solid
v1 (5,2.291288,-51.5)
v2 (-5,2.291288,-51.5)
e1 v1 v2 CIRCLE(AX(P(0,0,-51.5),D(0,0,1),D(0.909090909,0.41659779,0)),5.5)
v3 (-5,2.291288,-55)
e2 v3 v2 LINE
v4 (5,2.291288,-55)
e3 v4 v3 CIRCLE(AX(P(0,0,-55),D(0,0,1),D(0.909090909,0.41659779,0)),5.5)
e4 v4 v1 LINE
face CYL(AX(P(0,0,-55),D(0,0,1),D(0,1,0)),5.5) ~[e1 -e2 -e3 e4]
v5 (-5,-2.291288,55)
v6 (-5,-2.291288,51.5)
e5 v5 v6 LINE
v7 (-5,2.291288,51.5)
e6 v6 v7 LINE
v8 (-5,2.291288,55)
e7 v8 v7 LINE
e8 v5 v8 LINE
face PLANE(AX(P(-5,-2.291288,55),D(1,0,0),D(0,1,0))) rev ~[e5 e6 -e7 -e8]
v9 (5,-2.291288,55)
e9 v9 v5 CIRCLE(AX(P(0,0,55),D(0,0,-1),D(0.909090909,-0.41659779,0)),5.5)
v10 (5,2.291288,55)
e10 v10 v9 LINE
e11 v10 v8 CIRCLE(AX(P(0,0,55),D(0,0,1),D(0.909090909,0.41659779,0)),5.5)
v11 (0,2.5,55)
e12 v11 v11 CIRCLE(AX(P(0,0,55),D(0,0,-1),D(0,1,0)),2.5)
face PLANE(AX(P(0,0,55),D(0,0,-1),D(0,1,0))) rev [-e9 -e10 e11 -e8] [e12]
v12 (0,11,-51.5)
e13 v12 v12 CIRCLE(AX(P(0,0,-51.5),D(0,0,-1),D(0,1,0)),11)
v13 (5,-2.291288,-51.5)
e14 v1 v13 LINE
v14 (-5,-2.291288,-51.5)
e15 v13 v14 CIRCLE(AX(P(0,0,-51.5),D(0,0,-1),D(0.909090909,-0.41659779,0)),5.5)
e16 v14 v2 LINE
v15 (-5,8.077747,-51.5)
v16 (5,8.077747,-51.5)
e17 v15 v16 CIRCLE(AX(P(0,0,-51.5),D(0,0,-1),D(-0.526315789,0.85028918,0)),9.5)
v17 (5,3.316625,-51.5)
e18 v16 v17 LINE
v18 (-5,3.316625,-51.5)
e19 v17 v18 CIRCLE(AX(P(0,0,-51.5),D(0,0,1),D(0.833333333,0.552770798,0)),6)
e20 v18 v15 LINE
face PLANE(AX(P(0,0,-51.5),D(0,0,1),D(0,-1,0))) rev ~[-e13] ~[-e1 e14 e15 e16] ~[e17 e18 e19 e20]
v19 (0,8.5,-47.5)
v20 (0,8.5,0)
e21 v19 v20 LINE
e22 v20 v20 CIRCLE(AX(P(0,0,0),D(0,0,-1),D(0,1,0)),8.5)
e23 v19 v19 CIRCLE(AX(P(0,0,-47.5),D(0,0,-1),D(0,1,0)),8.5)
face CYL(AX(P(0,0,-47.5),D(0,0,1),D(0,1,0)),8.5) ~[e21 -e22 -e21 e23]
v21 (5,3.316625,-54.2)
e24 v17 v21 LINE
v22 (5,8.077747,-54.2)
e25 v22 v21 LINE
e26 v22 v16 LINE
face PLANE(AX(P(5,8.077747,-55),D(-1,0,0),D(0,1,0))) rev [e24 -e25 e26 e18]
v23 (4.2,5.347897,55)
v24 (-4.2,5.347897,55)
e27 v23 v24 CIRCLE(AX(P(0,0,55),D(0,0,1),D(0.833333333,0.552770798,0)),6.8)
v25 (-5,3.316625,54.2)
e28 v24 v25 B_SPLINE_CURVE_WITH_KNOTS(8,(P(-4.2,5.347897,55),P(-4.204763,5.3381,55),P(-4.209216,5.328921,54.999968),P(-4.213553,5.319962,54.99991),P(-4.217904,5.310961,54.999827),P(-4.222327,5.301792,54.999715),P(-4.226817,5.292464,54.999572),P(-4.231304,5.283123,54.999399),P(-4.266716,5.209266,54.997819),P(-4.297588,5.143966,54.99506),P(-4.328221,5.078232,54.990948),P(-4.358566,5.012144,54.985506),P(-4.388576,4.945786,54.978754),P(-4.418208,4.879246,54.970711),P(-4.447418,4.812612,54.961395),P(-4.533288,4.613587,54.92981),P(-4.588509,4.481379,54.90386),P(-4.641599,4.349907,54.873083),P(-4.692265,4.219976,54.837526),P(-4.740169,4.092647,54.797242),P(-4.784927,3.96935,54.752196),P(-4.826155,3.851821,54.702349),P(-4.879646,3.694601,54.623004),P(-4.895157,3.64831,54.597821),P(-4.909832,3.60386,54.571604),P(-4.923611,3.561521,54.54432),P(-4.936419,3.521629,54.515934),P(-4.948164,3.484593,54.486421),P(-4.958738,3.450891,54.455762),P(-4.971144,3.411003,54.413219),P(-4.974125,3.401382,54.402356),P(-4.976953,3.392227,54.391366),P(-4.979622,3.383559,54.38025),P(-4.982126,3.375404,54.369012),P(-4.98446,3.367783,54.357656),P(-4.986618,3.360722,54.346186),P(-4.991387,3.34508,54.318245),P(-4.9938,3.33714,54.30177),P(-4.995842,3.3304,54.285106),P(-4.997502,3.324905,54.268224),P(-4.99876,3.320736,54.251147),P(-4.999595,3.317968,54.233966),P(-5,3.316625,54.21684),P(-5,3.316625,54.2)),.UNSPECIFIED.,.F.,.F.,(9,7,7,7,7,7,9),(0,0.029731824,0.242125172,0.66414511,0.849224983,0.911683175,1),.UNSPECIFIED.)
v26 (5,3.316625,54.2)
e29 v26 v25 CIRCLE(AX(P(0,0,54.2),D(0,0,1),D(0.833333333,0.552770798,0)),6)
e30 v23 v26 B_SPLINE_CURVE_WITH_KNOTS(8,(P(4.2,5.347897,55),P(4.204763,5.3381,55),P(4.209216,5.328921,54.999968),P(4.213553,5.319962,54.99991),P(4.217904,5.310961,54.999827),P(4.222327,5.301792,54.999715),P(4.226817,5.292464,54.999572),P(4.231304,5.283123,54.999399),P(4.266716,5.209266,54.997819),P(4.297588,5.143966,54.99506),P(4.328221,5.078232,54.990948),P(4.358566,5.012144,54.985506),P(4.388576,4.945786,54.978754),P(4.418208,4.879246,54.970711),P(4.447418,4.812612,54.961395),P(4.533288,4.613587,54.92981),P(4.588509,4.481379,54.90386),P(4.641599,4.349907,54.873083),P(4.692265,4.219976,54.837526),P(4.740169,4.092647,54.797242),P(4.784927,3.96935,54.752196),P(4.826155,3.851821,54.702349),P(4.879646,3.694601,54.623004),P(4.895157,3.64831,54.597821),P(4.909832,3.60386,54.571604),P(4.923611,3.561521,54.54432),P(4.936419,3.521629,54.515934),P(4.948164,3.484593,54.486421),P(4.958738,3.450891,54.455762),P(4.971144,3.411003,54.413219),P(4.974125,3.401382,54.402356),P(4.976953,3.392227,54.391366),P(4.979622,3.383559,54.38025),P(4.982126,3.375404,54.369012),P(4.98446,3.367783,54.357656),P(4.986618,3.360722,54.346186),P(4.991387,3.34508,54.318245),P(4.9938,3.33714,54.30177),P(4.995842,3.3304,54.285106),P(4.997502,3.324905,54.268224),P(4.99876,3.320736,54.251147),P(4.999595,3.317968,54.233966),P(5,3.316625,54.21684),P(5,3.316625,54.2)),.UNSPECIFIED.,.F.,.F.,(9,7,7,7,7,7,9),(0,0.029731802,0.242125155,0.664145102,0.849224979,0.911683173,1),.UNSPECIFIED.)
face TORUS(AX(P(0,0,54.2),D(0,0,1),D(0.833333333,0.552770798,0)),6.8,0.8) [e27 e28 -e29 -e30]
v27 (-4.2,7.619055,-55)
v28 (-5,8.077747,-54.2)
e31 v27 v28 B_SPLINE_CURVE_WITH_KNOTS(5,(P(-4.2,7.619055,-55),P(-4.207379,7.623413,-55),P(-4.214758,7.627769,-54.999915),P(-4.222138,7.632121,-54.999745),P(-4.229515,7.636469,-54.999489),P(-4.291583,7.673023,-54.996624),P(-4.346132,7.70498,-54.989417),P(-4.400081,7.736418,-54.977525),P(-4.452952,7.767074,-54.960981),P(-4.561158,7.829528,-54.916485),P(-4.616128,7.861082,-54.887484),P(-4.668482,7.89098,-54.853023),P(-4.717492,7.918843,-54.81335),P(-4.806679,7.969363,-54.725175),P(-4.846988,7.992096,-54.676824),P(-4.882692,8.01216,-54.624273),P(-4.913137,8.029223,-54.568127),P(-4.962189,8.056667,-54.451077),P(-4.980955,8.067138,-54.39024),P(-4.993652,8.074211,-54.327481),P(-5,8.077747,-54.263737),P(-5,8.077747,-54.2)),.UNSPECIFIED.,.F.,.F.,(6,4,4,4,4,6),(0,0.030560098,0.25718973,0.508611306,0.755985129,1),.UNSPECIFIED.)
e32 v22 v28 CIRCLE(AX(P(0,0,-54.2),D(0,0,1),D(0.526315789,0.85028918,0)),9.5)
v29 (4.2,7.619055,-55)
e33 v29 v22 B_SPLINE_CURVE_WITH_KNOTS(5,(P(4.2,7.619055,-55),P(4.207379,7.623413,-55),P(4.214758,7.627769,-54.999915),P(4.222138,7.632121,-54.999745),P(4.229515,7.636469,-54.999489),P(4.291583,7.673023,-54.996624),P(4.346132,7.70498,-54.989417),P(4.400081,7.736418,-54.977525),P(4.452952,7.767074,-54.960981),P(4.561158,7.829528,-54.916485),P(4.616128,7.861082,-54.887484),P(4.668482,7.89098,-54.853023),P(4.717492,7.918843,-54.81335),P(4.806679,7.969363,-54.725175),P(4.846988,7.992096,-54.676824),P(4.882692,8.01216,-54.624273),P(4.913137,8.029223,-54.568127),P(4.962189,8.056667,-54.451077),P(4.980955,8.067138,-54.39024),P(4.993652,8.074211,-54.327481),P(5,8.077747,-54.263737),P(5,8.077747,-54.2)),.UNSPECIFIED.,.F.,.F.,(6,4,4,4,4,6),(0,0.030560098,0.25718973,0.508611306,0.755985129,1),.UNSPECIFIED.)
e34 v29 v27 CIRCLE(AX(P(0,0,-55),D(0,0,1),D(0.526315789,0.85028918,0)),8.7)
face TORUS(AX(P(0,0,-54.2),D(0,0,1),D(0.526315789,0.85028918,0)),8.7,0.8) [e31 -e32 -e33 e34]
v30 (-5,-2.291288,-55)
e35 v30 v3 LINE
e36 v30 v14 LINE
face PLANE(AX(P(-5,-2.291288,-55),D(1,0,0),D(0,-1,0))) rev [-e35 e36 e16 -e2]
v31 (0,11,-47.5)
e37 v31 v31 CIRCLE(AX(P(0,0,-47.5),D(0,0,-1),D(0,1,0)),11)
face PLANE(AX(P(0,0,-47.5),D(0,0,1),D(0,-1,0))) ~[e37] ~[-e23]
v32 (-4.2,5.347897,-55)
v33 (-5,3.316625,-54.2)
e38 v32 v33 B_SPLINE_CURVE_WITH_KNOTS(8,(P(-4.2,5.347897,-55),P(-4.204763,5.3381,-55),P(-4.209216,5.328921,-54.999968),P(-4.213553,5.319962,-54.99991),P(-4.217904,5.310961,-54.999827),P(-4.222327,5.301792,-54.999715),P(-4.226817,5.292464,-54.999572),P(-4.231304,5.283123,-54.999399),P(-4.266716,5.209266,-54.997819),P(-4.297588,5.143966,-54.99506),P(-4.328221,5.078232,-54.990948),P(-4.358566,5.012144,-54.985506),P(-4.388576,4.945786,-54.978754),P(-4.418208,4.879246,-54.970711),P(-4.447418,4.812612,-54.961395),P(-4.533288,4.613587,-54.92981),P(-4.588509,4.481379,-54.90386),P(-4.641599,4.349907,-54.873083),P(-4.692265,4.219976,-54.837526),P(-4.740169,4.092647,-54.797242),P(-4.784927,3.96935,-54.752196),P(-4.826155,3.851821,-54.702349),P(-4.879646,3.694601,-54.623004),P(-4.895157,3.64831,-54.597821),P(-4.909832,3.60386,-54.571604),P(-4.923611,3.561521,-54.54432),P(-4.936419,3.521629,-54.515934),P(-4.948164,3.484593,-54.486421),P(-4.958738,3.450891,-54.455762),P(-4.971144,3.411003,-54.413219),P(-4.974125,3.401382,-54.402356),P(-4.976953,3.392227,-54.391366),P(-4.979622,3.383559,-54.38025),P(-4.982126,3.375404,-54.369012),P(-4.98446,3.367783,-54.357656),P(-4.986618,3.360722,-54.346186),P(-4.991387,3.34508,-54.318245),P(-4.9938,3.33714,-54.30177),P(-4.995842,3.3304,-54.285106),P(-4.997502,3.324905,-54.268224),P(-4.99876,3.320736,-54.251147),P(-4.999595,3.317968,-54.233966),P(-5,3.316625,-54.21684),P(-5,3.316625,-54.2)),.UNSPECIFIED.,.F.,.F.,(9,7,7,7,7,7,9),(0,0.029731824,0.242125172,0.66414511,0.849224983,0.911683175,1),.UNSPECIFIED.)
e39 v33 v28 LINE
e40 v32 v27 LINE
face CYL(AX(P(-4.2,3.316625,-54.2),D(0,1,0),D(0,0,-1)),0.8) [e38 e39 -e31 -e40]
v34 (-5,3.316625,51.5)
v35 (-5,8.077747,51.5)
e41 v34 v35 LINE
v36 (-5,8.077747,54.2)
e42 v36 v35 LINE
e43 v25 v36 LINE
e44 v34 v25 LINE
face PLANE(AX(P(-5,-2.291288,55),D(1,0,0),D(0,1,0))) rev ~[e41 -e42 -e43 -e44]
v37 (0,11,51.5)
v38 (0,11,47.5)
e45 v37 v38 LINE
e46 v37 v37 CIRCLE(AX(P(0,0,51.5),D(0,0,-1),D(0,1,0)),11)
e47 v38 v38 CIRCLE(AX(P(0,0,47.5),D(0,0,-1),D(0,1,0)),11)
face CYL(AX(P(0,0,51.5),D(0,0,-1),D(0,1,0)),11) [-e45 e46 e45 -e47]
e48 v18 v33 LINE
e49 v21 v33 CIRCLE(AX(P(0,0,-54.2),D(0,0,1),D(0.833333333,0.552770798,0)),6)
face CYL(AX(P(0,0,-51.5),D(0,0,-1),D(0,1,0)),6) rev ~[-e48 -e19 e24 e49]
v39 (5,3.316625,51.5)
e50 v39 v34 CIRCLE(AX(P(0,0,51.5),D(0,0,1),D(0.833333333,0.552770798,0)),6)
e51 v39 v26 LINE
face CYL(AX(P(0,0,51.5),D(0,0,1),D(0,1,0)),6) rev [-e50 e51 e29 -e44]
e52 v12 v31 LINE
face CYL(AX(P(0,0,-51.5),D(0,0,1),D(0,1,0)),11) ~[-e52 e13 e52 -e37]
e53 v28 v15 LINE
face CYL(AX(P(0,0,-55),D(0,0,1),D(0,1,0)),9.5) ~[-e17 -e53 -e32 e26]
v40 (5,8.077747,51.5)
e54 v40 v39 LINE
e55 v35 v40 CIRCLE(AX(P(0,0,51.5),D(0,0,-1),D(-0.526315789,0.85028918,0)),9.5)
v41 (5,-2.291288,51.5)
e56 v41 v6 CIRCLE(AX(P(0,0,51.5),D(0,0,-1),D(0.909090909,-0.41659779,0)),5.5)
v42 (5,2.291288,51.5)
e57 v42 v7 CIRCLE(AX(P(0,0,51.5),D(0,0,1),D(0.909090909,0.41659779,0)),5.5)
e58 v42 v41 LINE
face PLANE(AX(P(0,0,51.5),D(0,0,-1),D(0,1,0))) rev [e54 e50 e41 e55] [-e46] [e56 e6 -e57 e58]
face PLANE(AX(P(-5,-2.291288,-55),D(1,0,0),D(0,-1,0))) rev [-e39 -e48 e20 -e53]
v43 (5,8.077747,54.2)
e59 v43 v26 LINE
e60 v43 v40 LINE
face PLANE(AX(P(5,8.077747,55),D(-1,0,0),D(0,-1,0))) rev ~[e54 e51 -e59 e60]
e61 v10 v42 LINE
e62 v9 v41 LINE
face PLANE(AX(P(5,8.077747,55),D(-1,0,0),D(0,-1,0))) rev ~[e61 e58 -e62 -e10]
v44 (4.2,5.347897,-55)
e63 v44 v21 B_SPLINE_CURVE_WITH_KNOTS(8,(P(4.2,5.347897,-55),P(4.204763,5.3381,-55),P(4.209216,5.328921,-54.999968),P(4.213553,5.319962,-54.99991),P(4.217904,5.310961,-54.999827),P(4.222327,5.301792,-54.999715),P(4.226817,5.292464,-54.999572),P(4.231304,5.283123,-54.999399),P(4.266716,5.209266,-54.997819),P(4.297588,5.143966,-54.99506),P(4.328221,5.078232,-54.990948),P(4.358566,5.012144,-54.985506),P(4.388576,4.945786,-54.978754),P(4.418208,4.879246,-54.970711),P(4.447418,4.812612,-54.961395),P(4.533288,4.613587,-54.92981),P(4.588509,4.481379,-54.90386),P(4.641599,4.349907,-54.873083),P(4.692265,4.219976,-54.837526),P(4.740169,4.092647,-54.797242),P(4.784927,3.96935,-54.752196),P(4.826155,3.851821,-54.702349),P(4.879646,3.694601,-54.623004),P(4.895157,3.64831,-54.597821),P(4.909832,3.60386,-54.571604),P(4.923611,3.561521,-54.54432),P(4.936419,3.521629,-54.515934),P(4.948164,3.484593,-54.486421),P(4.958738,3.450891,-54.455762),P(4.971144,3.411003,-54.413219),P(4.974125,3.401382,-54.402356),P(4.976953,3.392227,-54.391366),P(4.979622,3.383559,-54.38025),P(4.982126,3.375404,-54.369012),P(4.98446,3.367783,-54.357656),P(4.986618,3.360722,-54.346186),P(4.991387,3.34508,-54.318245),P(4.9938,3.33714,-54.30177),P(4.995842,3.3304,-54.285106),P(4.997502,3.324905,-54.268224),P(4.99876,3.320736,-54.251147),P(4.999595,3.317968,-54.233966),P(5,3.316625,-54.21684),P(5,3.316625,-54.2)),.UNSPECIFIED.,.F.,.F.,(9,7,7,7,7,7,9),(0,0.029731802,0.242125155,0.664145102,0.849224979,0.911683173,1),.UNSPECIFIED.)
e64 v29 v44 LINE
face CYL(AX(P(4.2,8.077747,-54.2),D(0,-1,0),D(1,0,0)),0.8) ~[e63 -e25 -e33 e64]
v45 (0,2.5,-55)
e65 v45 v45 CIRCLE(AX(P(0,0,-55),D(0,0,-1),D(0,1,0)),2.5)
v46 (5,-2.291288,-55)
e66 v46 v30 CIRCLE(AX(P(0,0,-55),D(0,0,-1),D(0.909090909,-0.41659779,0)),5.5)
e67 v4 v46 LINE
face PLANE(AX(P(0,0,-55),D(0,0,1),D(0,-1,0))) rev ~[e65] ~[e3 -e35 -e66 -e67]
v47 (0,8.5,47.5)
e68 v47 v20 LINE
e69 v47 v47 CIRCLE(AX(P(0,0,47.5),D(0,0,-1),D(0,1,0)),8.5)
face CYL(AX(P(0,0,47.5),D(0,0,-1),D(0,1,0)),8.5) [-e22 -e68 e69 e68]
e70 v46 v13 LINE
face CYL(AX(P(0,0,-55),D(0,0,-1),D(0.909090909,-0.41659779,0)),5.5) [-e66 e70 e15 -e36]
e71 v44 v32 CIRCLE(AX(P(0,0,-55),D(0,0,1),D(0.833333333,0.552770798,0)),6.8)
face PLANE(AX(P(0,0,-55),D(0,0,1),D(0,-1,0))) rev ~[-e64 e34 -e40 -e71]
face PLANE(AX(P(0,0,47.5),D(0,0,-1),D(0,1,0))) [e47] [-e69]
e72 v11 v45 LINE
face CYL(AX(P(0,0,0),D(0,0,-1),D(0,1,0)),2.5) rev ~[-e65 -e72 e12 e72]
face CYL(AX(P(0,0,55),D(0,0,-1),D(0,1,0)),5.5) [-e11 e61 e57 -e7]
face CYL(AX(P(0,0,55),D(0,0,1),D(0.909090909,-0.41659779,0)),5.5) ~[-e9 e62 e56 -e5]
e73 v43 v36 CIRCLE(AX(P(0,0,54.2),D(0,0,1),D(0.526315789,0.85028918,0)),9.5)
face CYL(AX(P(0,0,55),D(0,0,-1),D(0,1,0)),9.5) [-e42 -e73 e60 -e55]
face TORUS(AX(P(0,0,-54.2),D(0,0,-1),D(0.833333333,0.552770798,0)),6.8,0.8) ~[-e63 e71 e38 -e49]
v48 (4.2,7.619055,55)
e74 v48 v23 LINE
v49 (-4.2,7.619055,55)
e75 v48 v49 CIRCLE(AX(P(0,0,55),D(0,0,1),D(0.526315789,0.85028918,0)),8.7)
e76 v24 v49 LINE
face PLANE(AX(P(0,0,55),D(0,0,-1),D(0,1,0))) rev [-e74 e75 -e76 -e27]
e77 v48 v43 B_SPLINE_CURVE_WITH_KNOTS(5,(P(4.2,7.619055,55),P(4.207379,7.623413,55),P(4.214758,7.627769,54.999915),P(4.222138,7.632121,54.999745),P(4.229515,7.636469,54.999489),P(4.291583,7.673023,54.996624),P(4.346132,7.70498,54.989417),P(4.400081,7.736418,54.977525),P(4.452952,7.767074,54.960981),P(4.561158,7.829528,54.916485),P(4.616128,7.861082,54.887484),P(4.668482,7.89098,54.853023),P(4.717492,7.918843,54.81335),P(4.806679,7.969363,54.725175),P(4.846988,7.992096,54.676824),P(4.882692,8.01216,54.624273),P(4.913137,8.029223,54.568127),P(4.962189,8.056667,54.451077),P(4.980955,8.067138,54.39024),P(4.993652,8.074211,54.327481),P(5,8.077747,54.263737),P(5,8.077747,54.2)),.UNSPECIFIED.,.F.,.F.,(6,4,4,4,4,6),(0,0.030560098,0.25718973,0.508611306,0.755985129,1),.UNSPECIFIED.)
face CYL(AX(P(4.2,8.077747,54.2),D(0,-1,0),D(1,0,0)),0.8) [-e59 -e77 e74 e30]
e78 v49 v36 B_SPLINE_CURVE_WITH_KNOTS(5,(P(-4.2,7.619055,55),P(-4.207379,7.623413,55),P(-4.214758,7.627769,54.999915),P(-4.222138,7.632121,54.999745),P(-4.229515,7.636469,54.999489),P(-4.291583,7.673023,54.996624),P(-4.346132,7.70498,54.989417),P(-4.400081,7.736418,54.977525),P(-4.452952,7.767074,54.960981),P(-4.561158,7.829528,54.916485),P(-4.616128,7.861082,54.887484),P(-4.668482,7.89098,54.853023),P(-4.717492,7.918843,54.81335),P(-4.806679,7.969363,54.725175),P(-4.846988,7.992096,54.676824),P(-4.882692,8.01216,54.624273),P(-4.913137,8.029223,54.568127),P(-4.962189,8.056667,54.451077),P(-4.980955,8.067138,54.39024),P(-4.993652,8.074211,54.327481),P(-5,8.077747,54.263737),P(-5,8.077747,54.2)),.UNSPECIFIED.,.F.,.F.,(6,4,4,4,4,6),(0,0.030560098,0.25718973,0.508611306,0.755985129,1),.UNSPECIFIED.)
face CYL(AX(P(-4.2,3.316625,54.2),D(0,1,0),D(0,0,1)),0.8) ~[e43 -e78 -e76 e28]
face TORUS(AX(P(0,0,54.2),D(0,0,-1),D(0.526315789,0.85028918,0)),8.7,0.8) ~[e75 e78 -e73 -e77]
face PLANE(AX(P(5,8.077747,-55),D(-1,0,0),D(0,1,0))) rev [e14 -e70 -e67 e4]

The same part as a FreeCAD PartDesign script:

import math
import FreeCAD as App
import Part
import Sketcher


def edges_at(feature, points):
    """Names of the edges that pass closest to the given points."""
    edges = feature.Shape.Edges
    near = lambda p: min(range(len(edges)), key=lambda i: edges[i].distToShape(Part.Vertex(*p))[0])
    return sorted({f"Edge{near(p) + 1}" for p in points})


def add_polygon(sketch, points):
    """Adds a closed chain of lines whose ends are joined by coincident constraints."""
    first, n = sketch.GeometryCount, len(points)
    for a, b in zip(points, points[1:] + points[:1]):
        sketch.addGeometry(Part.LineSegment(App.Vector(*a, 0), App.Vector(*b, 0)), False)
    for i in range(n):
        sketch.addConstraint(Sketcher.Constraint("Coincident", first + i, 2, first + (i + 1) % n, 1))

doc = App.newDocument("Part")
body = doc.addObject("PartDesign::Body", "Body")

sketch1 = body.newObject("Sketcher::SketchObject", "Sketch")
sketch1.AttachmentSupport = (doc.getObject("YZ_Plane"), [""])
sketch1.MapMode = "FlatFace"
add_polygon(sketch1, [(2.5, 55), (2.5, 0), (8.5, 0), (8.5, 47.5), (11, 47.5), (11, 51.5), (9.5, 51.5), (9.5, 55), (6, 55), (6, 51.5), (5.5, 51.5), (5.5, 55)])
sketch1.addConstraint([
    Sketcher.Constraint("Vertical", 0),
    Sketcher.Constraint("Horizontal", 1),
    Sketcher.Constraint("Vertical", 2),
    Sketcher.Constraint("Horizontal", 3),
    Sketcher.Constraint("Vertical", 4),
    Sketcher.Constraint("Horizontal", 5),
    Sketcher.Constraint("Vertical", 6),
    Sketcher.Constraint("Horizontal", 7),
    Sketcher.Constraint("Vertical", 8),
    Sketcher.Constraint("Horizontal", 9),
    Sketcher.Constraint("Vertical", 10),
    Sketcher.Constraint("Horizontal", 11),
    Sketcher.Constraint("PointOnObject", 0, 2, -1),
    Sketcher.Constraint("Horizontal", 5, 2, 8, 2),
    Sketcher.Constraint("Horizontal", 7, 2, 10, 2),
    Sketcher.Constraint("Equal", 7, 6),
    Sketcher.Constraint("DistanceX", 1, 1, 1, 2, 6.0),
    Sketcher.Constraint("DistanceX", 11, 2, 11, 1, 3.0),
    Sketcher.Constraint("DistanceY", 0, 2, 0, 1, 55.0),
    Sketcher.Constraint("DistanceY", 4, 1, 4, 2, 4.0),
    Sketcher.Constraint("DistanceX", 3, 1, 3, 2, 2.5),
    Sketcher.Constraint("DistanceX", 5, 2, 5, 1, 1.5),
    Sketcher.Constraint("DistanceX", 7, 2, 7, 1, 3.5),
    Sketcher.Constraint("DistanceX", -1, 1, 3, 2, 11.0),
])
revolution = body.newObject("PartDesign::Revolution", "Revolution")
revolution.Profile = sketch1
revolution.ReferenceAxis = (sketch1, ["V_Axis"])
revolution.Angle = 360

sketch2 = body.newObject("Sketcher::SketchObject", "Sketch001")
sketch2.AttachmentSupport = (doc.getObject("XY_Plane"), [""])
sketch2.MapMode = "FlatFace"
sketch2.AttachmentOffset = App.Placement(App.Vector(0, 0, 55), App.Rotation())
sketch2.addGeometry([
    Part.ArcOfCircle(Part.Circle(App.Vector(0, 0, 0), App.Vector(0, 0, 1), 10), math.radians(122), math.radians(418)),
    Part.LineSegment(App.Vector(5, 8, 0), App.Vector(5, -2, 0)),
    Part.ArcOfCircle(Part.Circle(App.Vector(0, 0, 0), App.Vector(0, 0, 1), 6), math.radians(-155), math.radians(-25)),
    Part.LineSegment(App.Vector(-5, -2, 0), App.Vector(-5, 8, 0)),
], False)
sketch2.addConstraint([
    Sketcher.Constraint("Coincident", 0, 2, 1, 1),
    Sketcher.Constraint("Coincident", 1, 2, 2, 2),
    Sketcher.Constraint("Coincident", 2, 1, 3, 1),
    Sketcher.Constraint("Coincident", 3, 2, 0, 1),
    Sketcher.Constraint("Vertical", 1),
    Sketcher.Constraint("Vertical", 3),
    Sketcher.Constraint("Coincident", 0, 3, -1, 1),
    Sketcher.Constraint("Coincident", 2, 3, -1, 1),
    Sketcher.Constraint("Horizontal", 1, 2, 2, 1),
    Sketcher.Constraint("Radius", 0, 9.5),
    Sketcher.Constraint("Radius", 2, 5.5),
    Sketcher.Constraint("DistanceX", -1, 1, 0, 2, 5.0),
])
pocket1 = body.newObject("PartDesign::Pocket", "Pocket")
pocket1.Profile = sketch2
pocket1.Length = 3.5
doc.recompute()

fillet = body.newObject("PartDesign::Fillet", "Fillet")
fillet.Base = (pocket1, edges_at(pocket1, [
    (0, 9.5, 55),
    (0, 6, 55),
    (5, 5.697, 55),
    (-5, 5.697, 55),
]))
fillet.Radius = 0.8
body2 = doc.addObject("PartDesign::Body", "Body001")
doc.recompute()

body2.BaseFeature = body
doc.recompute()

mirroring = doc.addObject("Part::Mirroring", "Mirroring")
mirroring.Source = body
mirroring.Base = App.Vector(0, 0, 0)
mirroring.Normal = App.Vector(0, 0, 1)
body3 = doc.addObject("PartDesign::Body", "Body002")
body3.BaseFeature = mirroring
boolean = body2.newObject("PartDesign::Boolean", "Boolean")
boolean.Type = "Fuse"
boolean.addObjects([body3])
doc.recompute()
mirroring.Visibility = False

doc.recompute()
